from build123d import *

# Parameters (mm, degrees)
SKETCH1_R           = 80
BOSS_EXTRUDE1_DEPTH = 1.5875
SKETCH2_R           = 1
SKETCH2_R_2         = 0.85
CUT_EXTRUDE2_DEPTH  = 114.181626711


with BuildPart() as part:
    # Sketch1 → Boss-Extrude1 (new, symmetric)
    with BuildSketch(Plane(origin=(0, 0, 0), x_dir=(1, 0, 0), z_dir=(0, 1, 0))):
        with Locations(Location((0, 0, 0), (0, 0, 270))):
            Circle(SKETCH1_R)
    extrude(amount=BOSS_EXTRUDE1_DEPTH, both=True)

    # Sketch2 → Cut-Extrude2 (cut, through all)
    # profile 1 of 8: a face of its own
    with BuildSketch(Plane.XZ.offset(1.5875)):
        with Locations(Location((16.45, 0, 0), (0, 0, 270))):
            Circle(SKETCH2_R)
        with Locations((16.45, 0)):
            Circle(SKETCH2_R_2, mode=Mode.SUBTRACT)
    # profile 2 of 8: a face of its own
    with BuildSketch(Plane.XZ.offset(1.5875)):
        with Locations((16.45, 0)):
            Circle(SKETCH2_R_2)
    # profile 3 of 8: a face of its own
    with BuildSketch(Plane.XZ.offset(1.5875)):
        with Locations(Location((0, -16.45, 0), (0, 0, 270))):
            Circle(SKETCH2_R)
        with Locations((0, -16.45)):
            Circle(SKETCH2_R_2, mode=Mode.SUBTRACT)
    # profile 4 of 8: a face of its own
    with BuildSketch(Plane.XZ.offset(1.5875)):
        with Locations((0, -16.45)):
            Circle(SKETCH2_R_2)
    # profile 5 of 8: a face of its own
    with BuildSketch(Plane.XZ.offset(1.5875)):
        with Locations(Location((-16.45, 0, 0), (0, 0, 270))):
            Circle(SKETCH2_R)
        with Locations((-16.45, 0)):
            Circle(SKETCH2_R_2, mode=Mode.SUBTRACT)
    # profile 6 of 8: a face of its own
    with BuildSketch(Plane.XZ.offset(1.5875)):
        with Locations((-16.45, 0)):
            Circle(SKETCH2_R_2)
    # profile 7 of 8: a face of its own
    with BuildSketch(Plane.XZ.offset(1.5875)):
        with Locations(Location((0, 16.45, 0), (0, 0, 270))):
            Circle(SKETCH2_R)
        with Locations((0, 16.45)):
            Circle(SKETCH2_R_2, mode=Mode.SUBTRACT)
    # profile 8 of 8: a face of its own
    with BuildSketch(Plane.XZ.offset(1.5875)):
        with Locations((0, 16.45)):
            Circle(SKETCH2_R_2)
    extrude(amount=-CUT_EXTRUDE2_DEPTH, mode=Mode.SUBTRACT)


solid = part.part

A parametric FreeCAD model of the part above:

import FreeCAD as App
import Part
import Sketcher

V = App.Vector
Q = App.Units.Quantity

doc = App.newDocument("Part")
body = doc.addObject("PartDesign::Body", "Body")

sketch1 = body.newObject("Sketcher::SketchObject", "Sketch")
sketch1.AttachmentSupport = (doc.getObject("XZ_Plane"), [""])
sketch1.MapMode = "FlatFace"
sketch1.addGeometry(Part.Circle(V(0, 0, 0), V(0, 0, 1), 80), False)
sketch1.addConstraint([
    Sketcher.Constraint("Coincident", 0, 3, -1, 1),
    Sketcher.Constraint("Diameter", 0, Q("160 mm")),
])
pad1 = body.newObject("PartDesign::Pad", "Pad")
pad1.Profile = sketch1
pad1.Length = 3.175
pad1.Midplane = True

sketch2 = body.newObject("Sketcher::SketchObject", "Sketch001")
sketch2.AttachmentSupport = (doc.getObject("XZ_Plane"), [""])
sketch2.MapMode = "FlatFace"
sketch2.AttachmentOffset = App.Placement(V(0, 0, 1.5875), App.Rotation())
sketch2.addGeometry([
    Part.Circle(V(16.4, 0, 0), V(0, 0, 1), 1),
    Part.Circle(V(0, -16.4, 0), V(0, 0, 1), 1),
    Part.Circle(V(-16.4, 0, 0), V(0, 0, 1), 1),
    Part.Circle(V(0, 16.4, 0), V(0, 0, 1), 1),
], False)
sketch2.addConstraint([
    Sketcher.Constraint("Equal", 0, 1),
    Sketcher.Constraint("Equal", 1, 2),
    Sketcher.Constraint("Equal", 2, 3),
    Sketcher.Constraint("Symmetric", 0, 3, 2, 3, -1, 1),
    Sketcher.Constraint("Symmetric", 1, 3, 3, 3, -1, 1),
    Sketcher.Constraint("PointOnObject", 0, 3, -1),
    Sketcher.Constraint("PointOnObject", 1, 3, -2),
    Sketcher.Constraint("Diameter", 0, Q("2 mm")),
    Sketcher.Constraint("DistanceX", 2, 3, 0, 3, Q("32.9 mm")),
    Sketcher.Constraint("DistanceY", 1, 3, 3, 3, Q("32.9 mm")),
])
pocket1 = body.newObject("PartDesign::Pocket", "Pocket")
pocket1.Profile = sketch2
pocket1.Length = 114.181627

doc.recompute()
